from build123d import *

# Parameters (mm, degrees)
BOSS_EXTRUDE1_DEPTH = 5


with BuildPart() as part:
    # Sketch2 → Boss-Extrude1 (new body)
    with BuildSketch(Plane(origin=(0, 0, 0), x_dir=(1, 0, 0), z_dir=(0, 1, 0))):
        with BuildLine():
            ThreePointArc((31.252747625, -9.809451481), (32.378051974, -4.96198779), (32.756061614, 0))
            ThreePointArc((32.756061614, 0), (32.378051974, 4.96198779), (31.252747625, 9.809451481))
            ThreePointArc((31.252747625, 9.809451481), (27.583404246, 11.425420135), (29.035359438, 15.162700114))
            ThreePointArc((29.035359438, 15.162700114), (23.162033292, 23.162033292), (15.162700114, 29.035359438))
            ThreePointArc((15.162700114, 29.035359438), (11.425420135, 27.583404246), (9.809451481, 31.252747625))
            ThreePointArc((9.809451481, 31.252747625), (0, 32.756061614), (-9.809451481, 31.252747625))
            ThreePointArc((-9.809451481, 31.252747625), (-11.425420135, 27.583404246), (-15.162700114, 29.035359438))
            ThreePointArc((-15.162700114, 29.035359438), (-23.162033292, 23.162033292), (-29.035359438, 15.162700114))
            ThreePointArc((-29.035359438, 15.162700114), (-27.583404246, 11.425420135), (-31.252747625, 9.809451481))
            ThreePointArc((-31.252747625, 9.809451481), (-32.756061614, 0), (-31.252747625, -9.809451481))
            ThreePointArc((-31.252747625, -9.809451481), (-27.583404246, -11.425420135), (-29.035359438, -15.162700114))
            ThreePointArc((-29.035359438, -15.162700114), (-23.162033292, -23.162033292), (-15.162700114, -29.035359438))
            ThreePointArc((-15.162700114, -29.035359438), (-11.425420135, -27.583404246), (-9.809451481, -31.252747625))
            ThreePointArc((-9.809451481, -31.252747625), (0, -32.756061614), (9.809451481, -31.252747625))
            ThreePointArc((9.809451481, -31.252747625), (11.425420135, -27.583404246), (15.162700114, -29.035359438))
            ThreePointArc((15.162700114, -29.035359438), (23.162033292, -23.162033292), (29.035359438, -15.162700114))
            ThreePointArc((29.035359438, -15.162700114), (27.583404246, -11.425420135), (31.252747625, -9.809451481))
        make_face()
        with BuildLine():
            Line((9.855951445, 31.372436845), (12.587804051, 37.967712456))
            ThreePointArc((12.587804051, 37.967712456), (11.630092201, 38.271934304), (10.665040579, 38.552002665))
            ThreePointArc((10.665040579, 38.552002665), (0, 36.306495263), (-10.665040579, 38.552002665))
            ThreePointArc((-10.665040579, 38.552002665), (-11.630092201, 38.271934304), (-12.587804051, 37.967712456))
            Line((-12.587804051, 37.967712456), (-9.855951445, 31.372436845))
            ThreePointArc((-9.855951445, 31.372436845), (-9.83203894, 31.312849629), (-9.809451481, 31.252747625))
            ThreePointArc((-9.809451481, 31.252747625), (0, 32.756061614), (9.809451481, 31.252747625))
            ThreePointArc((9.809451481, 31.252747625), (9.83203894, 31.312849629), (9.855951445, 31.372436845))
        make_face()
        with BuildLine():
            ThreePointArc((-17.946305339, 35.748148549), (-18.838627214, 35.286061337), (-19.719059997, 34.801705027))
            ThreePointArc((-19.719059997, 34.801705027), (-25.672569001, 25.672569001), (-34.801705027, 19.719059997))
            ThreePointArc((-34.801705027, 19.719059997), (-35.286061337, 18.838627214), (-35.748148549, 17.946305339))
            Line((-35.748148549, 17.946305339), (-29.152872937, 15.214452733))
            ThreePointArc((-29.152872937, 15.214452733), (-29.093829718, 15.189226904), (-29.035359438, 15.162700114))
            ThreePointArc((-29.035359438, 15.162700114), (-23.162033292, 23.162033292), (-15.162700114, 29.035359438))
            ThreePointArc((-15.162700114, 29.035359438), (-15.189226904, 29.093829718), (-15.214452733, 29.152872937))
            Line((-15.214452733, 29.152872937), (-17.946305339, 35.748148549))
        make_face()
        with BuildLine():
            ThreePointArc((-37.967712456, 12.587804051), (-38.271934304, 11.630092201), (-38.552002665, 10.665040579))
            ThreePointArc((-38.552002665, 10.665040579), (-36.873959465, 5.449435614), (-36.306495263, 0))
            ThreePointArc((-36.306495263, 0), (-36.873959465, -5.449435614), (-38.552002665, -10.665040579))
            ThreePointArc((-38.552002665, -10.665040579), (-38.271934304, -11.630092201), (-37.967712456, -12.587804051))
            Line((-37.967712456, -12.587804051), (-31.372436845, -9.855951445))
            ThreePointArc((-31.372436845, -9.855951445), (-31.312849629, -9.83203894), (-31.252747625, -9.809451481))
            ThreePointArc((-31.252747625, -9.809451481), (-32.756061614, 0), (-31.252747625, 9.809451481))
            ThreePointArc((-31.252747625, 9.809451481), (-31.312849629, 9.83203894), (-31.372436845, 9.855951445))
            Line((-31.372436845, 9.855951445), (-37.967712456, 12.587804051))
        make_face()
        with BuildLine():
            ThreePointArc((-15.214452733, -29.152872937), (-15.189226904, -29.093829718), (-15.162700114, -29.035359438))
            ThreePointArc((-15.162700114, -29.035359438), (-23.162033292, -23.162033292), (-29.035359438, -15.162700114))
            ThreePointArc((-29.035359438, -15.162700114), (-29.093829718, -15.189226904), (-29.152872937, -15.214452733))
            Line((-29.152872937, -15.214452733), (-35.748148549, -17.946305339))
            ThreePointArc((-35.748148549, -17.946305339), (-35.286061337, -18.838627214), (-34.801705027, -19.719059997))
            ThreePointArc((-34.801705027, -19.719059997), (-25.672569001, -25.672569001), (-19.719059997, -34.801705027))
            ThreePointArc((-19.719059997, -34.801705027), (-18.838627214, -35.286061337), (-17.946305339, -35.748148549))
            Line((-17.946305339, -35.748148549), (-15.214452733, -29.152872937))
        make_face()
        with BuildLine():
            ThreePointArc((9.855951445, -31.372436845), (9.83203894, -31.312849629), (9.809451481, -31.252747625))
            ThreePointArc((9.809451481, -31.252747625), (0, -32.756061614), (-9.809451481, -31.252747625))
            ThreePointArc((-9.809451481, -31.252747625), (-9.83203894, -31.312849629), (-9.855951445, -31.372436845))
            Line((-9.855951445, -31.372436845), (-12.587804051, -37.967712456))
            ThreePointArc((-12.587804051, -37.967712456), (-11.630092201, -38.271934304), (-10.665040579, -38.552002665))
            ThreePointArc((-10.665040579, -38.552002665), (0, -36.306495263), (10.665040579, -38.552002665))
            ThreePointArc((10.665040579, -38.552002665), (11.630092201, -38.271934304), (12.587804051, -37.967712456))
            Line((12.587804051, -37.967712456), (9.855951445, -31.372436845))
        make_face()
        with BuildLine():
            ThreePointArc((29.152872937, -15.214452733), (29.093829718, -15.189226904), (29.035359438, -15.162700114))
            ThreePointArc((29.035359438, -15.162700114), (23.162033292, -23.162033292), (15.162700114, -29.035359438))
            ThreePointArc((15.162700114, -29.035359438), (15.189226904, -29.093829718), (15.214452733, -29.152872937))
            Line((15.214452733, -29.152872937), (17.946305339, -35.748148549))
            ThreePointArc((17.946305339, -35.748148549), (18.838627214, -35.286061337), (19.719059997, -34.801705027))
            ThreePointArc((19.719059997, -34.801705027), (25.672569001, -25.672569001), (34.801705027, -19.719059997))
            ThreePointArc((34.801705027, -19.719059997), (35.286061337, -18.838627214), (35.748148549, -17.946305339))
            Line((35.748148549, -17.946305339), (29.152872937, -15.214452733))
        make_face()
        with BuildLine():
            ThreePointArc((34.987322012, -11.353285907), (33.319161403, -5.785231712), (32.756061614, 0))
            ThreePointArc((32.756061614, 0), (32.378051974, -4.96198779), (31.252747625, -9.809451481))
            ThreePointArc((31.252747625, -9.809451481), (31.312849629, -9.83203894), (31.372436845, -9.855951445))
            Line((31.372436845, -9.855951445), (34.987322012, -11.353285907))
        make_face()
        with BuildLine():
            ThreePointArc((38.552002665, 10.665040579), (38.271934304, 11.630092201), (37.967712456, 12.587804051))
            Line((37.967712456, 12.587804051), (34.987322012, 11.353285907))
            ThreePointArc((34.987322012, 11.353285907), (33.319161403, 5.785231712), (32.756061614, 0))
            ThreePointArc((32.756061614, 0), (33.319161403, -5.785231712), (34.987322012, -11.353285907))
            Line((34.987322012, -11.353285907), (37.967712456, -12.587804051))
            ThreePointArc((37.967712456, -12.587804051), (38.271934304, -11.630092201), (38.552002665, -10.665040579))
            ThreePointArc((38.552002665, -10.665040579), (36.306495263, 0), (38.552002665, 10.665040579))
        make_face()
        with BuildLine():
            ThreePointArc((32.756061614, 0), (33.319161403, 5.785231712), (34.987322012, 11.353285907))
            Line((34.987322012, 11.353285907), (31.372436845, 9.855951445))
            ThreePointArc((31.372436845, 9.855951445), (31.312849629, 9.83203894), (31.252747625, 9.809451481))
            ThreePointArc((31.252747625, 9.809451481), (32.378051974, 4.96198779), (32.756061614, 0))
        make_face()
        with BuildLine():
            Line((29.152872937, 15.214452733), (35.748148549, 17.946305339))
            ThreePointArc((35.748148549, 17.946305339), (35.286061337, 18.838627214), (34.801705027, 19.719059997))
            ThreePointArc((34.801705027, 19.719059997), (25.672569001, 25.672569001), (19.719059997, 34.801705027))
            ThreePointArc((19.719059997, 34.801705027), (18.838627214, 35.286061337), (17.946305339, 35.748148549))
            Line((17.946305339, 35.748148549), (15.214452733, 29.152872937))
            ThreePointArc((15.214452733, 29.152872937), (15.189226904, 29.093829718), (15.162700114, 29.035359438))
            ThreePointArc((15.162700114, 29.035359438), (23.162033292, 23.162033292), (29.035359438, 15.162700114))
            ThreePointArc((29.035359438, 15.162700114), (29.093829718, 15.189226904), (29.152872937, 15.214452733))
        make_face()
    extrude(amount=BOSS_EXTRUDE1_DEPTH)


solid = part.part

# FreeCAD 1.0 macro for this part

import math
import FreeCAD as App
import Part
import Sketcher

V = App.Vector
Q = App.Units.Quantity

doc = App.newDocument("Part")
body = doc.addObject("PartDesign::Body", "Body")

# Sketch on XZ plane
sketch1 = body.newObject("Sketcher::SketchObject", "Sketch")
sketch1.AttachmentSupport = (doc.getObject("XZ_Plane"), [""])
sketch1.MapMode = "FlatFace"
sketch1.addGeometry([
    Part.ArcOfCircle(Part.Circle(V(30.26, -12.54, 0), V(0, 0, 1), 2.9), math.radians(70), math.radians(245)),  # 0
    Part.ArcOfCircle(Part.Circle(V(30.26, -12.54, 0), V(0, 0, 1), 2.9), math.radians(-115.04), math.radians(-112.5)),  # 1
    Part.LineSegment(V(29.15, -15.21, 0), V(35.75, -17.95, 0)),  # 2
    Part.ArcOfCircle(Part.Circle(V(0, 0, 0), V(0, 0, 1), 40), math.radians(-29.54), math.radians(-26.66)),  # 3
    Part.ArcOfCircle(Part.Circle(V(44.38, -44.38, 0), V(0, 0, 1), 26.45), math.radians(111), math.radians(159)),  # 4
    Part.ArcOfCircle(Part.Circle(V(0, 0, 0), V(0, 0, 1), 40), math.radians(-63.34), math.radians(-60.46)),  # 5
    Part.LineSegment(V(17.95, -35.75, 0), V(15.21, -29.15, 0)),  # 6
    Part.ArcOfCircle(Part.Circle(V(12.54, -30.26, 0), V(0, 0, 1), 2.9), math.radians(22.5), math.radians(25.04)),  # 7
    Part.ArcOfCircle(Part.Circle(V(12.54, -30.26, 0), V(0, 0, 1), 2.9), math.radians(25), math.radians(200)),  # 8
    Part.ArcOfCircle(Part.Circle(V(12.54, -30.26, 0), V(0, 0, 1), 2.9), math.radians(-160.04), math.radians(-157.5)),  # 9
    Part.LineSegment(V(9.86, -31.37, 0), V(12.59, -37.97, 0)),  # 10
    Part.ArcOfCircle(Part.Circle(V(0, 0, 0), V(0, 0, 1), 40), math.radians(-74.54), math.radians(-71.66)),  # 11
    Part.ArcOfCircle(Part.Circle(V(0, -62.76, 0), V(0, 0, 1), 26.45), math.radians(66), math.radians(114)),  # 12
    Part.ArcOfCircle(Part.Circle(V(0, 0, 0), V(0, 0, 1), 40), math.radians(-108.34), math.radians(-105.46)),  # 13
    Part.LineSegment(V(-12.59, -37.97, 0), V(-9.86, -31.37, 0)),  # 14
    Part.ArcOfCircle(Part.Circle(V(-12.54, -30.26, 0), V(0, 0, 1), 2.9), math.radians(-22.5), math.radians(-19.96)),  # 15
    Part.ArcOfCircle(Part.Circle(V(-12.54, -30.26, 0), V(0, 0, 1), 2.9), math.radians(-20), math.radians(155)),  # 16
    Part.ArcOfCircle(Part.Circle(V(-12.54, -30.26, 0), V(0, 0, 1), 2.9), math.radians(154.96), math.radians(157.5)),  # 17
    Part.LineSegment(V(-15.21, -29.15, 0), V(-17.95, -35.75, 0)),  # 18
    Part.ArcOfCircle(Part.Circle(V(0, 0, 0), V(0, 0, 1), 40), math.radians(-119.54), math.radians(-116.66)),  # 19
    Part.ArcOfCircle(Part.Circle(V(-44.38, -44.38, 0), V(0, 0, 1), 26.45), math.radians(21), math.radians(69)),  # 20
    Part.ArcOfCircle(Part.Circle(V(0, 0, 0), V(0, 0, 1), 40), math.radians(-153.34), math.radians(-150.46)),  # 21
    Part.LineSegment(V(-35.75, -17.95, 0), V(-29.15, -15.21, 0)),  # 22
    Part.ArcOfCircle(Part.Circle(V(-30.26, -12.54, 0), V(0, 0, 1), 2.9), math.radians(-67.5), math.radians(-64.96)),  # 23
    Part.ArcOfCircle(Part.Circle(V(-30.26, -12.54, 0), V(0, 0, 1), 2.9), math.radians(-65), math.radians(110)),  # 24
    Part.ArcOfCircle(Part.Circle(V(-30.26, -12.54, 0), V(0, 0, 1), 2.9), math.radians(109.96), math.radians(112.5)),  # 25
    Part.LineSegment(V(-31.37, -9.86, 0), V(-37.97, -12.59, 0)),  # 26
    Part.ArcOfCircle(Part.Circle(V(0, 0, 0), V(0, 0, 1), 40), math.radians(-164.54), math.radians(-161.66)),  # 27
    Part.ArcOfCircle(Part.Circle(V(-62.76, 0, 0), V(0, 0, 1), 26.45), math.radians(-24), math.radians(0)),  # 28
    Part.ArcOfCircle(Part.Circle(V(-62.76, 0, 0), V(0, 0, 1), 26.45), math.radians(0), math.radians(24)),  # 29
    Part.ArcOfCircle(Part.Circle(V(0, 0, 0), V(0, 0, 1), 40), math.radians(161.66), math.radians(164.54)),  # 30
    Part.LineSegment(V(-37.97, 12.59, 0), V(-31.37, 9.86, 0)),  # 31
    Part.ArcOfCircle(Part.Circle(V(-30.26, 12.54, 0), V(0, 0, 1), 2.9), math.radians(-112.5), math.radians(-109.96)),  # 32
    Part.ArcOfCircle(Part.Circle(V(-30.26, 12.54, 0), V(0, 0, 1), 2.9), math.radians(-110), math.radians(65)),  # 33
    Part.ArcOfCircle(Part.Circle(V(-30.26, 12.54, 0), V(0, 0, 1), 2.9), math.radians(64.96), math.radians(67.5)),  # 34
    Part.LineSegment(V(-29.15, 15.21, 0), V(-35.75, 17.95, 0)),  # 35
    Part.ArcOfCircle(Part.Circle(V(0, 0, 0), V(0, 0, 1), 40), math.radians(150.46), math.radians(153.34)),  # 36
    Part.ArcOfCircle(Part.Circle(V(-44.38, 44.38, 0), V(0, 0, 1), 26.45), math.radians(-69), math.radians(-21)),  # 37
    Part.ArcOfCircle(Part.Circle(V(0, 0, 0), V(0, 0, 1), 40), math.radians(116.66), math.radians(119.54)),  # 38
    Part.LineSegment(V(-17.95, 35.75, 0), V(-15.21, 29.15, 0)),  # 39
    Part.ArcOfCircle(Part.Circle(V(-12.54, 30.26, 0), V(0, 0, 1), 2.9), math.radians(-157.5), math.radians(-154.96)),  # 40
    Part.ArcOfCircle(Part.Circle(V(-12.54, 30.26, 0), V(0, 0, 1), 2.9), math.radians(-155), math.radians(20)),  # 41
    Part.ArcOfCircle(Part.Circle(V(-12.54, 30.26, 0), V(0, 0, 1), 2.9), math.radians(19.96), math.radians(22.5)),  # 42
    Part.LineSegment(V(-9.86, 31.37, 0), V(-12.59, 37.97, 0)),  # 43
    Part.ArcOfCircle(Part.Circle(V(0, 0, 0), V(0, 0, 1), 40), math.radians(105.46), math.radians(108.34)),  # 44
    Part.ArcOfCircle(Part.Circle(V(0, 62.76, 0), V(0, 0, 1), 26.45), math.radians(-114), math.radians(-66)),  # 45
    Part.ArcOfCircle(Part.Circle(V(0, 0, 0), V(0, 0, 1), 40), math.radians(71.66), math.radians(74.54)),  # 46
    Part.LineSegment(V(12.59, 37.97, 0), V(9.86, 31.37, 0)),  # 47
    Part.ArcOfCircle(Part.Circle(V(12.54, 30.26, 0), V(0, 0, 1), 2.9), math.radians(157.5), math.radians(160.04)),  # 48
    Part.ArcOfCircle(Part.Circle(V(12.54, 30.26, 0), V(0, 0, 1), 2.9), math.radians(160), math.radians(335)),  # 49
    Part.ArcOfCircle(Part.Circle(V(12.54, 30.26, 0), V(0, 0, 1), 2.9), math.radians(-25.04), math.radians(-22.5)),  # 50
    Part.LineSegment(V(15.21, 29.15, 0), V(17.95, 35.75, 0)),  # 51
    Part.ArcOfCircle(Part.Circle(V(0, 0, 0), V(0, 0, 1), 40), math.radians(60.46), math.radians(63.34)),  # 52
    Part.ArcOfCircle(Part.Circle(V(44.38, 44.38, 0), V(0, 0, 1), 26.45), math.radians(-159), math.radians(-111)),  # 53
    Part.ArcOfCircle(Part.Circle(V(0, 0, 0), V(0, 0, 1), 40), math.radians(26.66), math.radians(29.54)),  # 54
    Part.LineSegment(V(35.75, 17.95, 0), V(29.15, 15.21, 0)),  # 55
    Part.ArcOfCircle(Part.Circle(V(30.26, 12.54, 0), V(0, 0, 1), 2.9), math.radians(112.5), math.radians(115.04)),  # 56
    Part.ArcOfCircle(Part.Circle(V(30.26, 12.54, 0), V(0, 0, 1), 2.9), math.radians(115), math.radians(290)),  # 57
    Part.ArcOfCircle(Part.Circle(V(30.26, 12.54, 0), V(0, 0, 1), 2.9), math.radians(-70.04), math.radians(-67.5)),  # 58
    Part.LineSegment(V(31.37, 9.86, 0), V(34.99, 11.35, 0)),  # 59
    Part.LineSegment(V(34.99, 11.35, 0), V(37.97, 12.59, 0)),  # 60
    Part.ArcOfCircle(Part.Circle(V(0, 0, 0), V(0, 0, 1), 40), math.radians(15.46), math.radians(18.34)),  # 61
    Part.ArcOfCircle(Part.Circle(V(62.76, 0, 0), V(0, 0, 1), 26.45), math.radians(156), math.radians(204)),  # 62
    Part.ArcOfCircle(Part.Circle(V(0, 0, 0), V(0, 0, 1), 40), math.radians(-18.34), math.radians(-15.46)),  # 63
    Part.LineSegment(V(37.97, -12.59, 0), V(34.99, -11.35, 0)),  # 64
    Part.LineSegment(V(34.99, -11.35, 0), V(31.37, -9.86, 0)),  # 65
    Part.ArcOfCircle(Part.Circle(V(30.26, -12.54, 0), V(0, 0, 1), 2.9), math.radians(67.5), math.radians(70.04)),  # 66
], False)
sketch1.addConstraint([
    Sketcher.Constraint("Tangent", 0, 2, 1, 1),
    Sketcher.Constraint("Tangent", 1, 2, 2, 1),
    Sketcher.Constraint("Coincident", 2, 2, 3, 2),
    Sketcher.Constraint("Coincident", 3, 1, 4, 1),
    Sketcher.Constraint("Coincident", 4, 2, 5, 2),
    Sketcher.Constraint("Coincident", 5, 1, 6, 1),
    Sketcher.Constraint("Tangent", 6, 2, 7, 1),
    Sketcher.Constraint("Tangent", 7, 2, 8, 1),
    Sketcher.Constraint("Tangent", 8, 2, 9, 1),
    Sketcher.Constraint("Tangent", 9, 2, 10, 1),
    Sketcher.Constraint("Coincident", 10, 2, 11, 2),
    Sketcher.Constraint("Coincident", 11, 1, 12, 1),
    Sketcher.Constraint("Coincident", 12, 2, 13, 2),
    Sketcher.Constraint("Coincident", 13, 1, 14, 1),
    Sketcher.Constraint("Tangent", 14, 2, 15, 1),
    Sketcher.Constraint("Tangent", 15, 2, 16, 1),
    Sketcher.Constraint("Tangent", 16, 2, 17, 1),
    Sketcher.Constraint("Tangent", 17, 2, 18, 1),
    Sketcher.Constraint("Coincident", 18, 2, 19, 2),
    Sketcher.Constraint("Coincident", 19, 1, 20, 1),
    Sketcher.Constraint("Coincident", 20, 2, 21, 2),
    Sketcher.Constraint("Coincident", 21, 1, 22, 1),
    Sketcher.Constraint("Tangent", 22, 2, 23, 1),
    Sketcher.Constraint("Tangent", 23, 2, 24, 1),
    Sketcher.Constraint("Tangent", 24, 2, 25, 1),
    Sketcher.Constraint("Tangent", 25, 2, 26, 1),
    Sketcher.Constraint("Coincident", 26, 2, 27, 2),
    Sketcher.Constraint("Coincident", 27, 1, 28, 1),
    Sketcher.Constraint("Tangent", 28, 2, 29, 1),
    Sketcher.Constraint("Coincident", 29, 2, 30, 2),
    Sketcher.Constraint("Coincident", 30, 1, 31, 1),
    Sketcher.Constraint("Tangent", 31, 2, 32, 1),
    Sketcher.Constraint("Tangent", 32, 2, 33, 1),
    Sketcher.Constraint("Tangent", 33, 2, 34, 1),
    Sketcher.Constraint("Tangent", 34, 2, 35, 1),
    Sketcher.Constraint("Coincident", 35, 2, 36, 2),
    Sketcher.Constraint("Coincident", 36, 1, 37, 1),
    Sketcher.Constraint("Coincident", 37, 2, 38, 2),
    Sketcher.Constraint("Coincident", 38, 1, 39, 1),
    Sketcher.Constraint("Tangent", 39, 2, 40, 1),
    Sketcher.Constraint("Tangent", 40, 2, 41, 1),
    Sketcher.Constraint("Tangent", 41, 2, 42, 1),
    Sketcher.Constraint("Tangent", 42, 2, 43, 1),
    Sketcher.Constraint("Coincident", 43, 2, 44, 2),
    Sketcher.Constraint("Coincident", 44, 1, 45, 1),
    Sketcher.Constraint("Coincident", 45, 2, 46, 2),
    Sketcher.Constraint("Coincident", 46, 1, 47, 1),
    Sketcher.Constraint("Tangent", 47, 2, 48, 1),
    Sketcher.Constraint("Tangent", 48, 2, 49, 1),
    Sketcher.Constraint("Tangent", 49, 2, 50, 1),
    Sketcher.Constraint("Tangent", 50, 2, 51, 1),
    Sketcher.Constraint("Coincident", 51, 2, 52, 2),
    Sketcher.Constraint("Coincident", 52, 1, 53, 1),
    Sketcher.Constraint("Coincident", 53, 2, 54, 2),
    Sketcher.Constraint("Coincident", 54, 1, 55, 1),
    Sketcher.Constraint("Tangent", 55, 2, 56, 1),
    Sketcher.Constraint("Tangent", 56, 2, 57, 1),
    Sketcher.Constraint("Tangent", 57, 2, 58, 1),
    Sketcher.Constraint("Tangent", 58, 2, 59, 1),
    Sketcher.Constraint("Coincident", 59, 2, 60, 1),
    Sketcher.Constraint("Coincident", 60, 2, 61, 2),
    Sketcher.Constraint("Coincident", 61, 1, 62, 1),
    Sketcher.Constraint("Coincident", 62, 2, 63, 2),
    Sketcher.Constraint("Coincident", 63, 1, 64, 1),
    Sketcher.Constraint("Coincident", 64, 2, 65, 1),
    Sketcher.Constraint("Tangent", 65, 2, 66, 1),
    Sketcher.Constraint("Tangent", 66, 2, 0, 1),
    Sketcher.Constraint("Coincident", 3, 3, -1, 1),
    Sketcher.Constraint("Coincident", 5, 3, -1, 1),
    Sketcher.Constraint("Coincident", 11, 3, -1, 1),
    Sketcher.Constraint("Coincident", 13, 3, -1, 1),
    Sketcher.Constraint("Coincident", 19, 3, -1, 1),
    Sketcher.Constraint("Coincident", 21, 3, -1, 1),
    Sketcher.Constraint("Coincident", 27, 3, -1, 1),
    Sketcher.Constraint("Coincident", 30, 3, -1, 1),
    Sketcher.Constraint("Coincident", 36, 3, -1, 1),
    Sketcher.Constraint("Coincident", 38, 3, -1, 1),
    Sketcher.Constraint("Coincident", 44, 3, -1, 1),
    Sketcher.Constraint("Coincident", 46, 3, -1, 1),
    Sketcher.Constraint("Coincident", 52, 3, -1, 1),
    Sketcher.Constraint("Coincident", 54, 3, -1, 1),
    Sketcher.Constraint("Coincident", 61, 3, -1, 1),
    Sketcher.Constraint("Coincident", 63, 3, -1, 1),
    Sketcher.Constraint("Coincident", 9, 3, 7, 3),
    Sketcher.Constraint("Coincident", 17, 3, 15, 3),
    Sketcher.Constraint("Coincident", 25, 3, 23, 3),
    Sketcher.Constraint("Coincident", 34, 3, 32, 3),
    Sketcher.Constraint("Coincident", 42, 3, 40, 3),
    Sketcher.Constraint("Coincident", 50, 3, 48, 3),
    Sketcher.Constraint("Coincident", 58, 3, 56, 3),
    Sketcher.Constraint("Equal", 3, 5),
    Sketcher.Constraint("Equal", 1, 7),
    Sketcher.Constraint("Equal", 0, 8),
    Sketcher.Constraint("Equal", 5, 11),
    Sketcher.Constraint("Equal", 4, 12),
    Sketcher.Constraint("Equal", 11, 13),
    Sketcher.Constraint("Equal", 9, 15),
    Sketcher.Constraint("Equal", 13, 19),
    Sketcher.Constraint("Equal", 12, 20),
    Sketcher.Constraint("Equal", 19, 21),
    Sketcher.Constraint("Equal", 17, 23),
    Sketcher.Constraint("Equal", 21, 27),
    Sketcher.Constraint("Equal", 20, 28),
    Sketcher.Constraint("Equal", 28, 29),
    Sketcher.Constraint("Equal", 27, 30),
    Sketcher.Constraint("Equal", 25, 32),
    Sketcher.Constraint("Equal", 30, 36),
    Sketcher.Constraint("Equal", 29, 37),
    Sketcher.Constraint("Equal", 36, 38),
    Sketcher.Constraint("Equal", 34, 40),
    Sketcher.Constraint("Equal", 38, 44),
    Sketcher.Constraint("Equal", 37, 45),
    Sketcher.Constraint("Equal", 44, 46),
    Sketcher.Constraint("Equal", 42, 48),
    Sketcher.Constraint("Equal", 46, 52),
    Sketcher.Constraint("Equal", 45, 53),
    Sketcher.Constraint("Equal", 52, 54),
    Sketcher.Constraint("Equal", 50, 56),
    Sketcher.Constraint("Equal", 54, 61),
    Sketcher.Constraint("Equal", 53, 62),
    Sketcher.Constraint("Equal", 61, 63),
    Sketcher.Constraint("Equal", 58, 66),
    Sketcher.Constraint("Symmetric", 0, 3, 32, 3, -1, 1),
    Sketcher.Constraint("Symmetric", 4, 3, 37, 3, -1, 1),
    Sketcher.Constraint("Symmetric", 7, 3, 40, 3, -1, 1),
    Sketcher.Constraint("Symmetric", 12, 3, 45, 3, -1, 1),
    Sketcher.Constraint("Symmetric", 15, 3, 48, 3, -1, 1),
    Sketcher.Constraint("Symmetric", 20, 3, 53, 3, -1, 1),
    Sketcher.Constraint("Symmetric", 23, 3, 56, 3, -1, 1),
    Sketcher.Constraint("Symmetric", 28, 3, 62, 3, -1, 1),
    Sketcher.Constraint("Symmetric", 7, 3, 15, 3, -2),
    Sketcher.Constraint("Symmetric", 4, 3, 20, 3, -2),
    Sketcher.Constraint("Symmetric", 0, 3, 23, 3, -2),
    Sketcher.Constraint("Symmetric", 59, 2, 64, 2, -1),
    Sketcher.Constraint("PointOnObject", 12, 3, -2),
    Sketcher.Constraint("PointOnObject", 28, 3, -1),
    Sketcher.Constraint("PointOnObject", 28, 2, -1),
    Sketcher.Constraint("Parallel", 6, 10),
    Sketcher.Constraint("Perpendicular", 2, 14),
    Sketcher.Constraint("Parallel", 14, 18),
    Sketcher.Constraint("Perpendicular", 10, 22),
    Sketcher.Constraint("Parallel", 22, 26),
    Sketcher.Constraint("Perpendicular", 18, 31),
    Sketcher.Constraint("Parallel", 31, 35),
    Sketcher.Constraint("Perpendicular", 26, 39),
    Sketcher.Constraint("Parallel", 39, 43),
    Sketcher.Constraint("Perpendicular", 35, 47),
    Sketcher.Constraint("Parallel", 47, 51),
    Sketcher.Constraint("Perpendicular", 43, 55),
    Sketcher.Constraint("Parallel", 55, 59),
    Sketcher.Constraint("Parallel", 59, 60),
    Sketcher.Constraint("Perpendicular", 51, 64),
    Sketcher.Constraint("Parallel", 64, 65),
    Sketcher.Constraint("Horizontal", 8, 2, 15, 2),
    Sketcher.Constraint("Horizontal", 7, 2, 16, 2),
    Sketcher.Constraint("Horizontal", 0, 2, 23, 2),
    Sketcher.Constraint("Horizontal", 41, 2, 48, 2),
    Sketcher.Constraint("Horizontal", 40, 2, 49, 2),
    Sketcher.Constraint("Horizontal", 33, 2, 56, 2),
    Sketcher.Constraint("Horizontal", 32, 2, 57, 2),
    Sketcher.Constraint("Horizontal", 24, 2, 66, 2),
    Sketcher.Constraint("Vertical", 24, 2, 32, 2),
    Sketcher.Constraint("Vertical", 23, 2, 33, 2),
    Sketcher.Constraint("Vertical", 16, 2, 40, 2),
    Sketcher.Constraint("Vertical", 15, 2, 41, 2),
    Sketcher.Constraint("Equal", 2, 6),
    Sketcher.Constraint("Equal", 6, 10),
    Sketcher.Constraint("Equal", 22, 26),
    Sketcher.Constraint("Radius", 3, Q("40 mm")),
    Sketcher.Constraint("Radius", 0, Q("2.9 mm")),
    Sketcher.Constraint("Angle", 2, Q("-22.5 deg")),
    Sketcher.Constraint("Radius", 4, Q("26.449566 mm")),
    Sketcher.Constraint("DistanceY", 0, 2, -1, 1, Q("15.1627 mm")),
    Sketcher.Constraint("DistanceX", -1, 1, 7, 2, Q("15.1627 mm")),
    Sketcher.Constraint("Distance", 60, Q("3.225951 mm")),
    Sketcher.Constraint("DistanceY", 12, 3, -1, 1, Q("62.756062 mm")),
    Sketcher.Constraint("DistanceX", 28, 3, -1, 1, Q("62.756062 mm")),
    Sketcher.Constraint("DistanceX", -1, 1, 0, 2, Q("29.035359 mm")),
    Sketcher.Constraint("DistanceY", 3, 1, -1, 1, Q("19.71906 mm")),
    Sketcher.Constraint("DistanceX", -1, 1, 4, 2, Q("19.71906 mm")),
    Sketcher.Constraint("DistanceX", -1, 1, 8, 2, Q("9.809451 mm")),
    Sketcher.Constraint("DistanceY", 24, 2, -1, 1, Q("9.809451 mm")),
])
pad1 = body.newObject("PartDesign::Pad", "Pad")
pad1.Profile = sketch1
pad1.Length = 5
pad1.Reversed = True

doc.recompute()
